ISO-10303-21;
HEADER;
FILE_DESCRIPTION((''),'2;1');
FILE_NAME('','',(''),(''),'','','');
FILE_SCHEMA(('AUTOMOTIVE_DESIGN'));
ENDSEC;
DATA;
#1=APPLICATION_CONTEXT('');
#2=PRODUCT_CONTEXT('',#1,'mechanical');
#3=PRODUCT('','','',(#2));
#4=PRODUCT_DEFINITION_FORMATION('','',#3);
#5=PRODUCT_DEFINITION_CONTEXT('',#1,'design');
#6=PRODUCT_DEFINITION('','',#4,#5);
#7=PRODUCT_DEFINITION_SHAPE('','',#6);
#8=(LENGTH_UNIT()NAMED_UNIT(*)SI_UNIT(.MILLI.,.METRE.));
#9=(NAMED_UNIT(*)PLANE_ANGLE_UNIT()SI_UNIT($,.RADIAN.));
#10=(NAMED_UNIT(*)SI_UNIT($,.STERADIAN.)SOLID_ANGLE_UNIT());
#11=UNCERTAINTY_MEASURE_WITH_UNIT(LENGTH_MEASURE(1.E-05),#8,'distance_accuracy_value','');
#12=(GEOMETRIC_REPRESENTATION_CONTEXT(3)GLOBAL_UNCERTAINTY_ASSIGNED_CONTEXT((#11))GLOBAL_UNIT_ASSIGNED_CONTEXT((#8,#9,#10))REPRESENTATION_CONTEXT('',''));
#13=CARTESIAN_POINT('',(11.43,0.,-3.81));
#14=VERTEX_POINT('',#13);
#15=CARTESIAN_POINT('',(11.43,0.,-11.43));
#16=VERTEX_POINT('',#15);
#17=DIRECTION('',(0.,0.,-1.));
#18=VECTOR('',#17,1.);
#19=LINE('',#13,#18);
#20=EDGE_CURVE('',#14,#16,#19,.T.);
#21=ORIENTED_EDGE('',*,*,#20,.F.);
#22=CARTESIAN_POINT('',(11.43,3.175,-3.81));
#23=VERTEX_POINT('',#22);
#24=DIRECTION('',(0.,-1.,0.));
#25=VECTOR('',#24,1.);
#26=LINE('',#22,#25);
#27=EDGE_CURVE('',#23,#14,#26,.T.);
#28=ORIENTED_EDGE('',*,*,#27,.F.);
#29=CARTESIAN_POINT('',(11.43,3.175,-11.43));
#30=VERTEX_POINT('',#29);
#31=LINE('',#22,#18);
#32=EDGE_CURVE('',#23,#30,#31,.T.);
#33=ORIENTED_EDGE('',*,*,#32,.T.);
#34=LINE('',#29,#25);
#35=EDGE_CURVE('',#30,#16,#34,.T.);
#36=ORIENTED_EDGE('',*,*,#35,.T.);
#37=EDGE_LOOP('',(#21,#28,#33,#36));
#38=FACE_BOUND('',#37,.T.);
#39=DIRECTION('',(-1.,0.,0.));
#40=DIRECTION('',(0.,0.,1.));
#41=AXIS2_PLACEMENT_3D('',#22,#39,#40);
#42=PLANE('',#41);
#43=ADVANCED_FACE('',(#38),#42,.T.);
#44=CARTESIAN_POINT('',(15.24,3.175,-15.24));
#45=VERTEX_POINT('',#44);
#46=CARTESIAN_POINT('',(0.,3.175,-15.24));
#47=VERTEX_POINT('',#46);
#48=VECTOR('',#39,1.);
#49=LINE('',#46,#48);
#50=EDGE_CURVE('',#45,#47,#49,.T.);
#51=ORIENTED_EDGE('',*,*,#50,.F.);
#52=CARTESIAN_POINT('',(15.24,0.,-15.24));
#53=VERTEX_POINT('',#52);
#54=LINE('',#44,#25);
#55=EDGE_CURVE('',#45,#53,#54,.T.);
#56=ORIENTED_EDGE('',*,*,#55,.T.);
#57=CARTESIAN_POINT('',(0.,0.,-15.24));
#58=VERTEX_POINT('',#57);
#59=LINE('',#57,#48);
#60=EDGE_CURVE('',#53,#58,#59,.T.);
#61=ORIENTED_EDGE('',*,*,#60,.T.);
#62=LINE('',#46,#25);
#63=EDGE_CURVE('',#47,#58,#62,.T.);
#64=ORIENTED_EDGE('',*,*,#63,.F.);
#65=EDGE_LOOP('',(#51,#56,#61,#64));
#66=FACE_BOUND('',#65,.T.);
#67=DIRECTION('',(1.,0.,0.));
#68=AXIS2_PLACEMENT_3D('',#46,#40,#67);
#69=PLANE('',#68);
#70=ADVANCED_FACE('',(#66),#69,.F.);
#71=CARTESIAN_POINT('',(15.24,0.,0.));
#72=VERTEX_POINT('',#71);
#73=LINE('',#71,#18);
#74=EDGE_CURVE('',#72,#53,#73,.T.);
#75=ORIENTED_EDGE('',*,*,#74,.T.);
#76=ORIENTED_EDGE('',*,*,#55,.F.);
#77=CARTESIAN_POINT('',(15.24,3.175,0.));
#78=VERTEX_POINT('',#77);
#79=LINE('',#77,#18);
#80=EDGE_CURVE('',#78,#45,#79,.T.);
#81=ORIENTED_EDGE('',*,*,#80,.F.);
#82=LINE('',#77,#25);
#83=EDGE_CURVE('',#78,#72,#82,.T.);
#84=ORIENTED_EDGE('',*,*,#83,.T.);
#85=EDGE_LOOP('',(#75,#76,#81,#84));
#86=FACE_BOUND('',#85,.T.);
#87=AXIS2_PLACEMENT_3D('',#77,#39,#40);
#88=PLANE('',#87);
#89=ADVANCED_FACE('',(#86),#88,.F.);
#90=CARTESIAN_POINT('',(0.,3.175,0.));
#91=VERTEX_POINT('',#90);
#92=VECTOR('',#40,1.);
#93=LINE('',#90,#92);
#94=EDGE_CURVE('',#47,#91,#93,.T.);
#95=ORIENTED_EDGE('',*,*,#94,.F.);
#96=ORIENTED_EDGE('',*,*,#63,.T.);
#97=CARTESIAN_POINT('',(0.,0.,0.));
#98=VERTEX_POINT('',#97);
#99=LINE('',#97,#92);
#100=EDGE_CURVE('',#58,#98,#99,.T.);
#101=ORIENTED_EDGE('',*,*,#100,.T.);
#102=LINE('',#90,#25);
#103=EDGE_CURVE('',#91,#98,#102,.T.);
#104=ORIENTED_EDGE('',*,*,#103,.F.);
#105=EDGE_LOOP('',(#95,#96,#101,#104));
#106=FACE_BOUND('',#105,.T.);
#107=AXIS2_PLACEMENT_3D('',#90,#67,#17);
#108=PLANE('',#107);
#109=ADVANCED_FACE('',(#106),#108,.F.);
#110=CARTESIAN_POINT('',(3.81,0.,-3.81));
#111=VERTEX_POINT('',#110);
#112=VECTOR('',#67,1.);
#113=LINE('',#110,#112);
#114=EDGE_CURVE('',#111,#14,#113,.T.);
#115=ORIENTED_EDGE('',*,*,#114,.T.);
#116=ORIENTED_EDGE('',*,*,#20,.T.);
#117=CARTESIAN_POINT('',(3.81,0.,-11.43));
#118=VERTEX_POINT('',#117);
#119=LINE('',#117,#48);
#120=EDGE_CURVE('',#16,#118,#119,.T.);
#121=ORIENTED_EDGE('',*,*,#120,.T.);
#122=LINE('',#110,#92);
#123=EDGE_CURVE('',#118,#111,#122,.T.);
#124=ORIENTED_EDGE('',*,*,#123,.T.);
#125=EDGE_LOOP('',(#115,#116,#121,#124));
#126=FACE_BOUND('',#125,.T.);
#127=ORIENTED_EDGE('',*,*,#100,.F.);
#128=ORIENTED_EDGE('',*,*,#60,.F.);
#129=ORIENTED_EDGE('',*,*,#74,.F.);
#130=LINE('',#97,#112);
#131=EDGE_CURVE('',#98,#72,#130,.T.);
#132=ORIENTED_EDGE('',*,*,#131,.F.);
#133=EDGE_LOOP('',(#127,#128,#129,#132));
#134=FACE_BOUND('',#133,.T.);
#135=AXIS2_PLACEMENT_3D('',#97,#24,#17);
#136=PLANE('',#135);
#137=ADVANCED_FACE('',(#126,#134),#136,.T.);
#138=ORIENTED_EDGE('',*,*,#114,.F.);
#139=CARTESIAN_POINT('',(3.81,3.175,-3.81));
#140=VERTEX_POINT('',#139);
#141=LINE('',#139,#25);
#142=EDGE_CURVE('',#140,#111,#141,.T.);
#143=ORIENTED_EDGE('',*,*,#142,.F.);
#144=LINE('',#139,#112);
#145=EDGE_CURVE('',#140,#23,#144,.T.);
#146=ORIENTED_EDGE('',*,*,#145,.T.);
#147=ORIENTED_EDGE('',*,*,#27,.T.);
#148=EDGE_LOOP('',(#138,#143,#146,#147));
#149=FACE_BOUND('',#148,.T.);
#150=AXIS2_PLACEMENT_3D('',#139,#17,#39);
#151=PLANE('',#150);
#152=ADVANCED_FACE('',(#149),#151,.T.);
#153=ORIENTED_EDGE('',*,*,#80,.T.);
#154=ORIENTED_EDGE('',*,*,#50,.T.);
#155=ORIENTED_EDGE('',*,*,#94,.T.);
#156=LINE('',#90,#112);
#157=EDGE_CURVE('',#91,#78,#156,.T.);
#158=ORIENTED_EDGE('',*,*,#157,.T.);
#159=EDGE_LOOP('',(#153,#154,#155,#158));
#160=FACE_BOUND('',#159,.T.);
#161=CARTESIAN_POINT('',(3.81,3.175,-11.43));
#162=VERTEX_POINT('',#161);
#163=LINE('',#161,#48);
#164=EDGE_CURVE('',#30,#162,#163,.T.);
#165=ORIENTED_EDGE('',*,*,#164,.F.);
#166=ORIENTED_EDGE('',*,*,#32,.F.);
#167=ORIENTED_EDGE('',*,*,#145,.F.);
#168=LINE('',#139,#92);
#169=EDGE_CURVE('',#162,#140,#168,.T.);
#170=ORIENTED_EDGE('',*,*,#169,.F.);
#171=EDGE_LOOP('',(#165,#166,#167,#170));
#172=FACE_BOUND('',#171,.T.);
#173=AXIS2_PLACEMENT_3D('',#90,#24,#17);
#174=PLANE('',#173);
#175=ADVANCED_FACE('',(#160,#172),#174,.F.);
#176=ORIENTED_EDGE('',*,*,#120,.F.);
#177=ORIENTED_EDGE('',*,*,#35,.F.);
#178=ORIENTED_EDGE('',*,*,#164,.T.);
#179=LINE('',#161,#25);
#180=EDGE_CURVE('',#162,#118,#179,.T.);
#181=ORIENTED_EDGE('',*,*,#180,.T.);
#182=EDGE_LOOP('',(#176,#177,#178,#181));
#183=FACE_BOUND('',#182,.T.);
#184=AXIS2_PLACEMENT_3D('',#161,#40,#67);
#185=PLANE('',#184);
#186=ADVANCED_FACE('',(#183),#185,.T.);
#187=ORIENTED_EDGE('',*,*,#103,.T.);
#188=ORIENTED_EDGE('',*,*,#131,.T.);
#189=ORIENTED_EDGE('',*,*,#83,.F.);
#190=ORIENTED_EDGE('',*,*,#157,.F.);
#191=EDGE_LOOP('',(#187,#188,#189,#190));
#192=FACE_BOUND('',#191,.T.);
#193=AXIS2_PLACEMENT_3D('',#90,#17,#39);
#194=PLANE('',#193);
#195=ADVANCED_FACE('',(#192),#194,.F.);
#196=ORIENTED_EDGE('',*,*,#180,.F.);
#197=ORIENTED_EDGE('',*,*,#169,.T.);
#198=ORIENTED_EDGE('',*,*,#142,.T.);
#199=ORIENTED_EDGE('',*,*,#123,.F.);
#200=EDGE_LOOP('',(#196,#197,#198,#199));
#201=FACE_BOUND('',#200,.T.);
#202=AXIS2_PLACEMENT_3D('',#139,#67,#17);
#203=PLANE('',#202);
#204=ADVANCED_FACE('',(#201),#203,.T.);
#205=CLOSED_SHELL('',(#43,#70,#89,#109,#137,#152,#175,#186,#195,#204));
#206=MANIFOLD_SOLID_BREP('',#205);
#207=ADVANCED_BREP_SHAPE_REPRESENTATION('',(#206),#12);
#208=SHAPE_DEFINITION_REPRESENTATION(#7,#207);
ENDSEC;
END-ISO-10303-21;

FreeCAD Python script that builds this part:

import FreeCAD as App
import Part
import Sketcher
Q = App.Units.Quantity


def add_polygon(sketch, points):
    """Adds a closed chain of lines whose ends are joined by coincident constraints."""
    first, n = sketch.GeometryCount, len(points)
    for a, b in zip(points, points[1:] + points[:1]):
        sketch.addGeometry(Part.LineSegment(App.Vector(*a, 0), App.Vector(*b, 0)), False)
    for i in range(n):
        sketch.addConstraint(Sketcher.Constraint("Coincident", first + i, 2, first + (i + 1) % n, 1))

doc = App.newDocument("Part")
params = doc.addObject("Spreadsheet::Sheet", "Params")
for row, (alias, value) in enumerate([
    ("sketch1_width", "0.6 in"),
    ("sketch1_width2", "0.3 in"),
    ("pad1_length", "0.125 in"),
], start=1):
    params.set(f"A{row}", alias)
    params.set(f"B{row}", "=" + value)
    params.setAlias(f"B{row}", alias)

body = doc.addObject("PartDesign::Body", "Body")

# Sketch on XZ plane
sketch1 = doc.addObject("Sketcher::SketchObject", "Sketch")
body.addObject(sketch1)
sketch1.AttachmentSupport = (doc.XZ_Plane, [""])
sketch1.MapMode = "FlatFace"
add_polygon(sketch1, [(0, -15), (0, 0), (15, 0), (15, -15)])  # lines 0-3
add_polygon(sketch1, [(11, -4), (4, -4), (4, -11), (11, -11)])  # lines 4-7
sketch1.addConstraint([
    Sketcher.Constraint("Vertical", 0),
    Sketcher.Constraint("Horizontal", 1),
    Sketcher.Constraint("Vertical", 2),
    Sketcher.Constraint("Horizontal", 3),
    Sketcher.Constraint("Horizontal", 4),
    Sketcher.Constraint("Vertical", 5),
    Sketcher.Constraint("Horizontal", 6),
    Sketcher.Constraint("Vertical", 7),
    Sketcher.Constraint("Coincident", 0, 2, -1, 1),
    Sketcher.Constraint("Equal", 3, 0),
    Sketcher.Constraint("Equal", 6, 5),
    Sketcher.Constraint("DistanceX", 1, 1, 1, 2, Q("0.6 in")),
    Sketcher.Constraint("DistanceX", 4, 2, 4, 1, Q("0.3 in")),
    Sketcher.Constraint("DistanceX", -1, 1, 4, 2, Q("0.15 in")),
    Sketcher.Constraint("DistanceY", 4, 2, -1, 1, Q("0.15 in")),
])
sketch1.setExpression("Constraints[19]", "Params.sketch1_width")
sketch1.setExpression("Constraints[20]", "Params.sketch1_width2")
pad1 = doc.addObject("PartDesign::Pad", "Pad")
body.addObject(pad1)
pad1.Profile = sketch1
pad1.setExpression("Length", "Params.pad1_length")
pad1.Reversed = True

doc.recompute()
